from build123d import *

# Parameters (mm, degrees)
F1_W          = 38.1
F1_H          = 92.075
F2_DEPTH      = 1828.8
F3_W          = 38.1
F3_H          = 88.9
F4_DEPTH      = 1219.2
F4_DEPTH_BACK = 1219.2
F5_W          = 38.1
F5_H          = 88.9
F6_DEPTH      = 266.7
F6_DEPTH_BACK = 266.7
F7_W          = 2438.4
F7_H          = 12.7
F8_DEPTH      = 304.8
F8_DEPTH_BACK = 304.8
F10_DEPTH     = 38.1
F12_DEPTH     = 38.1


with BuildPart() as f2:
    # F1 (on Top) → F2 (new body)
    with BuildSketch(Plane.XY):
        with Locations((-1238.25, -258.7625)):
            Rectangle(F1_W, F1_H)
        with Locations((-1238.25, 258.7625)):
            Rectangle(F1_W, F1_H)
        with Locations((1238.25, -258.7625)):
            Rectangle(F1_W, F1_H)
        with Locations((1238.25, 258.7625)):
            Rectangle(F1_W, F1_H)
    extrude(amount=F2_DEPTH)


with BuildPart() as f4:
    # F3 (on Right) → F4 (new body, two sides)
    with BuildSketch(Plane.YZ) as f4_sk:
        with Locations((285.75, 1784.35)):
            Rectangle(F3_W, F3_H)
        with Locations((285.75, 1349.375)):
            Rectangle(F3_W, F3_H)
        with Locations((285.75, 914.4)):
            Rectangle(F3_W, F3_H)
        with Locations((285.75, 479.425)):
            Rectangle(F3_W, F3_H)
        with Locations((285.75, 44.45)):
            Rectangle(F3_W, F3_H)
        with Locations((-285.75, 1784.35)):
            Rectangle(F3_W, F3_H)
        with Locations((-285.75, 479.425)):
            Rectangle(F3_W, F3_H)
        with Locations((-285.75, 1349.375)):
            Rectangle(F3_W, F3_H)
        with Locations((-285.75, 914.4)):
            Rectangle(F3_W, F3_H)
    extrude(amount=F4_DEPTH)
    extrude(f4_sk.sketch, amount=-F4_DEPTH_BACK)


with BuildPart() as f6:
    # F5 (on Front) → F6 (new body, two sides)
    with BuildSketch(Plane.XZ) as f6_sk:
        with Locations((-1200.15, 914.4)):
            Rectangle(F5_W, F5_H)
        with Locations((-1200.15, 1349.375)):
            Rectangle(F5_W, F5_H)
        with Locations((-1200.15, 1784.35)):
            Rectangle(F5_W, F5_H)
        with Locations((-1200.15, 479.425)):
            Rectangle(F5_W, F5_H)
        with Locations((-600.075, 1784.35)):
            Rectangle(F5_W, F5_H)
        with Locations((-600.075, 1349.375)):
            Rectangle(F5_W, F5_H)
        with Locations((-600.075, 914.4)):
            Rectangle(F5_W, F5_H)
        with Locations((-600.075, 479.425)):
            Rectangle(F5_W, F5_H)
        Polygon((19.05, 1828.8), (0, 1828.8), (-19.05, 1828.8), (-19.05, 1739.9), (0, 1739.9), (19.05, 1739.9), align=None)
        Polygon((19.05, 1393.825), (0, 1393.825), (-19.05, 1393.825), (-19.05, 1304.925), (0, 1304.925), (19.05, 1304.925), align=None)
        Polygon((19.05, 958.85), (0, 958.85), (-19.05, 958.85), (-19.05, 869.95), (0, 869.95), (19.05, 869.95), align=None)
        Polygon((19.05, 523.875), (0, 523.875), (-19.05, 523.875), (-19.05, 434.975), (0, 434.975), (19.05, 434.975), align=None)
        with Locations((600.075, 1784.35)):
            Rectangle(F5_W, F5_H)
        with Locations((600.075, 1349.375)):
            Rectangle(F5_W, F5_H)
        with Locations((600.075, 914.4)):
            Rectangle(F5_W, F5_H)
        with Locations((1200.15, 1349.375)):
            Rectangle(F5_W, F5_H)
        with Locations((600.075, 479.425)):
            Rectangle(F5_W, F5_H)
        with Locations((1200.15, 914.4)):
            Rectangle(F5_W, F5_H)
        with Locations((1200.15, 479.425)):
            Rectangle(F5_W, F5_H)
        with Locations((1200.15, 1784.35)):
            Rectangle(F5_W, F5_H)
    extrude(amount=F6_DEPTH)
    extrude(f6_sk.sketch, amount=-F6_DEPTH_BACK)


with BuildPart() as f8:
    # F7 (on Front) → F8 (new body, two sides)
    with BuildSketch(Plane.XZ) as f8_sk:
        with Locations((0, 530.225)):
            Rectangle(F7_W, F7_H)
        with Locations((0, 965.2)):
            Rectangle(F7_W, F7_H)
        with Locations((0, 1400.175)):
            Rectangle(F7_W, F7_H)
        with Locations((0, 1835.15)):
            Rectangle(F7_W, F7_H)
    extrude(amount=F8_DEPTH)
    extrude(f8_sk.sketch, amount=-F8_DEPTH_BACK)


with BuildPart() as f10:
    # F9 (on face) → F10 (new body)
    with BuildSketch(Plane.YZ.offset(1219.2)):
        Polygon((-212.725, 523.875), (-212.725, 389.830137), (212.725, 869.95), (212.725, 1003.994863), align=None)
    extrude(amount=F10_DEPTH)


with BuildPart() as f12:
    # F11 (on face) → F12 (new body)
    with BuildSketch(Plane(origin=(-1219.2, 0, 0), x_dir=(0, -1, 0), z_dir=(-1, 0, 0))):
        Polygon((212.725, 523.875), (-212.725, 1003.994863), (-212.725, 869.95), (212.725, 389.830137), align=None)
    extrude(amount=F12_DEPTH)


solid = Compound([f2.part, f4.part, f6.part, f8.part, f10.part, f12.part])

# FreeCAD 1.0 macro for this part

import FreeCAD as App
import Part
import Sketcher
from FreeCAD import Vector
Q = App.Units.Quantity


def add_polygon(sketch, points):
    """Adds a closed chain of lines whose ends are joined by coincident constraints."""
    first, n = sketch.GeometryCount, len(points)
    for a, b in zip(points, points[1:] + points[:1]):
        sketch.addGeometry(Part.LineSegment(App.Vector(*a, 0), App.Vector(*b, 0)), False)
    for i in range(n):
        sketch.addConstraint(Sketcher.Constraint("Coincident", first + i, 2, first + (i + 1) % n, 1))

doc = App.newDocument("Part")
body = doc.addObject("PartDesign::Body", "Body")
body.AllowCompound = True

sketch1 = doc.addObject("Sketcher::SketchObject", "Sketch")
body.addObject(sketch1)
sketch1.AttachmentSupport = (doc.XY_Plane, [""])
sketch1.MapMode = "FlatFace"
add_polygon(sketch1, [(-1257.3, -212.725), (-1257.3, -304.8), (-1219.2, -304.8), (-1219.2, -212.725)])
add_polygon(sketch1, [(-1257.3, 304.8), (-1257.3, 212.725), (-1219.2, 212.725), (-1219.2, 304.8)])
add_polygon(sketch1, [(1219.2, -212.725), (1219.2, -304.8), (1257.3, -304.8), (1257.3, -212.725)])
add_polygon(sketch1, [(1219.2, 304.8), (1219.2, 212.725), (1257.3, 212.725), (1257.3, 304.8)])
sketch1.addConstraint([
    Sketcher.Constraint("Vertical", 0),
    Sketcher.Constraint("Horizontal", 1),
    Sketcher.Constraint("Vertical", 2),
    Sketcher.Constraint("Horizontal", 3),
    Sketcher.Constraint("Vertical", 4),
    Sketcher.Constraint("Horizontal", 5),
    Sketcher.Constraint("Vertical", 6),
    Sketcher.Constraint("Horizontal", 7),
    Sketcher.Constraint("Vertical", 8),
    Sketcher.Constraint("Horizontal", 9),
    Sketcher.Constraint("Vertical", 10),
    Sketcher.Constraint("Horizontal", 11),
    Sketcher.Constraint("Vertical", 12),
    Sketcher.Constraint("Horizontal", 13),
    Sketcher.Constraint("Vertical", 14),
    Sketcher.Constraint("Horizontal", 15),
    Sketcher.Constraint("Symmetric", 6, 2, 8, 2, -1, 1),
    Sketcher.Constraint("Symmetric", 4, 2, 10, 2, -1, 1),
    Sketcher.Constraint("Symmetric", 2, 2, 12, 2, -1, 1),
    Sketcher.Constraint("Symmetric", 0, 2, 14, 2, -1, 1),
    Sketcher.Constraint("Symmetric", 1, 2, 8, 2, -2),
    Sketcher.Constraint("Symmetric", 3, 2, 10, 2, -2),
    Sketcher.Constraint("DistanceX", 1, 1, 1, 2, Q("1.5 in")),
    Sketcher.Constraint("DistanceY", 0, 2, -1, 1, Q("12 in")),
    Sketcher.Constraint("DistanceX", 1, 2, -1, 1, Q("48 in")),
    Sketcher.Constraint("DistanceY", 0, 2, 0, 1, Q("3.625 in")),
])
pad1 = doc.addObject("PartDesign::Pad", "Pad")
body.addObject(pad1)
pad1.Profile = sketch1
pad1.Length = Q("72 in")
body2 = doc.addObject("PartDesign::Body", "Body001")
body2.AllowCompound = True

sketch2 = doc.addObject("Sketcher::SketchObject", "Sketch001")
body2.addObject(sketch2)
sketch2.AttachmentSupport = (doc.getObject("YZ_Plane001"), [""])
sketch2.MapMode = "FlatFace"
add_polygon(sketch2, [(266.7, 1828.8), (266.7, 1739.9), (304.8, 1739.9), (304.8, 1828.8)])
add_polygon(sketch2, [(266.7, 1393.825), (266.7, 1304.925), (304.8, 1304.925), (304.8, 1393.825)])
add_polygon(sketch2, [(266.7, 958.85), (266.7, 869.95), (304.8, 869.95), (304.8, 958.85)])
add_polygon(sketch2, [(266.7, 523.875), (266.7, 434.975), (304.8, 434.975), (304.8, 523.875)])
add_polygon(sketch2, [(266.7, 88.9), (266.7, 0), (304.8, 0), (304.8, 88.9)])
add_polygon(sketch2, [(-304.8, 1828.8), (-304.8, 1739.9), (-266.7, 1739.9), (-266.7, 1828.8)])
add_polygon(sketch2, [(-304.8, 523.875), (-304.8, 434.975), (-266.7, 434.975), (-266.7, 523.875)])
add_polygon(sketch2, [(-304.8, 1393.825), (-304.8, 1304.925), (-266.7, 1304.925), (-266.7, 1393.825)])
add_polygon(sketch2, [(-304.8, 958.85), (-304.8, 869.95), (-266.7, 869.95), (-266.7, 958.85)])
sketch2.addConstraint([
    Sketcher.Constraint("Vertical", 0),
    Sketcher.Constraint("Horizontal", 1),
    Sketcher.Constraint("Vertical", 2),
    Sketcher.Constraint("Horizontal", 3),
    Sketcher.Constraint("Vertical", 4),
    Sketcher.Constraint("Horizontal", 5),
    Sketcher.Constraint("Vertical", 6),
    Sketcher.Constraint("Horizontal", 7),
    Sketcher.Constraint("Vertical", 8),
    Sketcher.Constraint("Horizontal", 9),
    Sketcher.Constraint("Vertical", 10),
    Sketcher.Constraint("Horizontal", 11),
    Sketcher.Constraint("Vertical", 12),
    Sketcher.Constraint("Horizontal", 13),
    Sketcher.Constraint("Vertical", 14),
    Sketcher.Constraint("Horizontal", 15),
    Sketcher.Constraint("Vertical", 16),
    Sketcher.Constraint("Horizontal", 17),
    Sketcher.Constraint("Vertical", 18),
    Sketcher.Constraint("Horizontal", 19),
    Sketcher.Constraint("Vertical", 20),
    Sketcher.Constraint("Horizontal", 21),
    Sketcher.Constraint("Vertical", 22),
    Sketcher.Constraint("Horizontal", 23),
    Sketcher.Constraint("Vertical", 24),
    Sketcher.Constraint("Horizontal", 25),
    Sketcher.Constraint("Vertical", 26),
    Sketcher.Constraint("Horizontal", 27),
    Sketcher.Constraint("Vertical", 28),
    Sketcher.Constraint("Horizontal", 29),
    Sketcher.Constraint("Vertical", 30),
    Sketcher.Constraint("Horizontal", 31),
    Sketcher.Constraint("Vertical", 32),
    Sketcher.Constraint("Horizontal", 33),
    Sketcher.Constraint("Vertical", 34),
    Sketcher.Constraint("Horizontal", 35),
    Sketcher.Constraint("Symmetric", 1, 2, 20, 2, -2),
    Sketcher.Constraint("Symmetric", 3, 2, 22, 2, -2),
    Sketcher.Constraint("Symmetric", 13, 2, 24, 2, -2),
    Sketcher.Constraint("Symmetric", 15, 2, 26, 2, -2),
    Sketcher.Constraint("Symmetric", 5, 2, 28, 2, -2),
    Sketcher.Constraint("Symmetric", 7, 2, 30, 2, -2),
    Sketcher.Constraint("Symmetric", 9, 2, 32, 2, -2),
    Sketcher.Constraint("Symmetric", 11, 2, 34, 2, -2),
    Sketcher.Constraint("PointOnObject", 16, 2, -1),
    Sketcher.Constraint("Vertical", 3, 2, 4, 2),
    Sketcher.Constraint("Vertical", 2, 2, 5, 2),
    Sketcher.Constraint("Vertical", 7, 2, 8, 2),
    Sketcher.Constraint("Vertical", 6, 2, 9, 2),
    Sketcher.Constraint("Vertical", 11, 2, 12, 2),
    Sketcher.Constraint("Vertical", 10, 2, 13, 2),
    Sketcher.Constraint("Vertical", 15, 2, 16, 2),
    Sketcher.Constraint("Vertical", 14, 2, 17, 2),
    Sketcher.Constraint("Equal", 2, 4),
    Sketcher.Constraint("Equal", 6, 8),
    Sketcher.Constraint("Equal", 10, 12),
    Sketcher.Constraint("Equal", 14, 16),
    Sketcher.Constraint("DistanceX", 1, 1, 1, 2, Q("1.5 in")),
    Sketcher.Constraint("DistanceY", 0, 2, 0, 1, Q("3.5 in")),
    Sketcher.Constraint("DistanceX", -1, 1, 1, 2, Q("12 in")),
    Sketcher.Constraint("DistanceY", -1, 1, 2, 2, Q("72 in")),
    Sketcher.Constraint("DistanceY", -1, 1, 8, 2, Q("34.25 in")),
    Sketcher.Constraint("DistanceY", 12, 2, 4, 2, Q("34.25 in")),
    Sketcher.Constraint("DistanceY", -1, 1, 4, 2, Q("51.375 in")),
])
pad2 = doc.addObject("PartDesign::Pad", "Pad001")
body2.addObject(pad2)
pad2.Profile = sketch2
pad2.Type = "TwoLengths"
pad2.Length = Q("48 in")
pad2.Length2 = Q("48 in")
body3 = doc.addObject("PartDesign::Body", "Body002")
body3.AllowCompound = True

sketch3 = doc.addObject("Sketcher::SketchObject", "Sketch002")
body3.addObject(sketch3)
sketch3.AttachmentSupport = (doc.getObject("XZ_Plane002"), [""])
sketch3.MapMode = "FlatFace"
add_polygon(sketch3, [(-1219.2, 958.85), (-1219.2, 869.95), (-1181.1, 869.95), (-1181.1, 958.85)])
add_polygon(sketch3, [(-1219.2, 1393.825), (-1219.2, 1304.925), (-1181.1, 1304.925), (-1181.1, 1393.825)])
add_polygon(sketch3, [(-1219.2, 1828.8), (-1219.2, 1739.9), (-1181.1, 1739.9), (-1181.1, 1828.8)])
add_polygon(sketch3, [(-1219.2, 523.875), (-1219.2, 434.975), (-1181.1, 434.975), (-1181.1, 523.875)])
add_polygon(sketch3, [(-619.125, 1828.8), (-619.125, 1739.9), (-581.025, 1739.9), (-581.025, 1828.8)])
add_polygon(sketch3, [(-619.125, 1393.825), (-619.125, 1304.925), (-581.025, 1304.925), (-581.025, 1393.825)])
add_polygon(sketch3, [(-619.125, 958.85), (-619.125, 869.95), (-581.025, 869.95), (-581.025, 958.85)])
add_polygon(sketch3, [(-619.125, 523.875), (-619.125, 434.975), (-581.025, 434.975), (-581.025, 523.875)])
add_polygon(sketch3, [(19.05, 1828.8), (-19.05, 1828.8), (-19.05, 1739.9), (19.05, 1739.9)])
add_polygon(sketch3, [(19.05, 1393.825), (-19.05, 1393.825), (-19.05, 1304.925), (19.05, 1304.925)])
add_polygon(sketch3, [(19.05, 958.85), (-19.05, 958.85), (-19.05, 869.95), (19.05, 869.95)])
add_polygon(sketch3, [(19.05, 523.875), (-19.05, 523.875), (-19.05, 434.975), (19.05, 434.975)])
add_polygon(sketch3, [(581.025, 1828.8), (581.025, 1739.9), (619.125, 1739.9), (619.125, 1828.8)])
add_polygon(sketch3, [(581.025, 1393.825), (581.025, 1304.925), (619.125, 1304.925), (619.125, 1393.825)])
add_polygon(sketch3, [(581.025, 958.85), (581.025, 869.95), (619.125, 869.95), (619.125, 958.85)])
add_polygon(sketch3, [(1181.1, 1393.825), (1181.1, 1304.925), (1219.2, 1304.925), (1219.2, 1393.825)])
add_polygon(sketch3, [(581.025, 523.875), (581.025, 434.975), (619.125, 434.975), (619.125, 523.875)])
add_polygon(sketch3, [(1181.1, 958.85), (1181.1, 869.95), (1219.2, 869.95), (1219.2, 958.85)])
add_polygon(sketch3, [(1181.1, 523.875), (1181.1, 434.975), (1219.2, 434.975), (1219.2, 523.875)])
add_polygon(sketch3, [(1181.1, 1828.8), (1181.1, 1739.9), (1219.2, 1739.9), (1219.2, 1828.8)])
sketch3.addConstraint([
    Sketcher.Constraint("Vertical", 0),
    Sketcher.Constraint("Horizontal", 1),
    Sketcher.Constraint("Vertical", 2),
    Sketcher.Constraint("Horizontal", 3),
    Sketcher.Constraint("Vertical", 4),
    Sketcher.Constraint("Horizontal", 5),
    Sketcher.Constraint("Vertical", 6),
    Sketcher.Constraint("Horizontal", 7),
    Sketcher.Constraint("Vertical", 8),
    Sketcher.Constraint("Horizontal", 9),
    Sketcher.Constraint("Vertical", 10),
    Sketcher.Constraint("Horizontal", 11),
    Sketcher.Constraint("Vertical", 12),
    Sketcher.Constraint("Horizontal", 13),
    Sketcher.Constraint("Vertical", 14),
    Sketcher.Constraint("Horizontal", 15),
    Sketcher.Constraint("Vertical", 16),
    Sketcher.Constraint("Horizontal", 17),
    Sketcher.Constraint("Vertical", 18),
    Sketcher.Constraint("Horizontal", 19),
    Sketcher.Constraint("Vertical", 20),
    Sketcher.Constraint("Horizontal", 21),
    Sketcher.Constraint("Vertical", 22),
    Sketcher.Constraint("Horizontal", 23),
    Sketcher.Constraint("Vertical", 24),
    Sketcher.Constraint("Horizontal", 25),
    Sketcher.Constraint("Vertical", 26),
    Sketcher.Constraint("Horizontal", 27),
    Sketcher.Constraint("Vertical", 28),
    Sketcher.Constraint("Horizontal", 29),
    Sketcher.Constraint("Vertical", 30),
    Sketcher.Constraint("Horizontal", 31),
    Sketcher.Constraint("Horizontal", 32),
    Sketcher.Constraint("Vertical", 33),
    Sketcher.Constraint("Horizontal", 34),
    Sketcher.Constraint("Vertical", 35),
    Sketcher.Constraint("Horizontal", 36),
    Sketcher.Constraint("Vertical", 37),
    Sketcher.Constraint("Horizontal", 38),
    Sketcher.Constraint("Vertical", 39),
    Sketcher.Constraint("Horizontal", 40),
    Sketcher.Constraint("Vertical", 41),
    Sketcher.Constraint("Horizontal", 42),
    Sketcher.Constraint("Vertical", 43),
    Sketcher.Constraint("Horizontal", 44),
    Sketcher.Constraint("Vertical", 45),
    Sketcher.Constraint("Horizontal", 46),
    Sketcher.Constraint("Vertical", 47),
    Sketcher.Constraint("Vertical", 48),
    Sketcher.Constraint("Horizontal", 49),
    Sketcher.Constraint("Vertical", 50),
    Sketcher.Constraint("Horizontal", 51),
    Sketcher.Constraint("Vertical", 52),
    Sketcher.Constraint("Horizontal", 53),
    Sketcher.Constraint("Vertical", 54),
    Sketcher.Constraint("Horizontal", 55),
    Sketcher.Constraint("Vertical", 56),
    Sketcher.Constraint("Horizontal", 57),
    Sketcher.Constraint("Vertical", 58),
    Sketcher.Constraint("Horizontal", 59),
    Sketcher.Constraint("Vertical", 60),
    Sketcher.Constraint("Horizontal", 61),
    Sketcher.Constraint("Vertical", 62),
    Sketcher.Constraint("Horizontal", 63),
    Sketcher.Constraint("Vertical", 64),
    Sketcher.Constraint("Horizontal", 65),
    Sketcher.Constraint("Vertical", 66),
    Sketcher.Constraint("Horizontal", 67),
    Sketcher.Constraint("Vertical", 68),
    Sketcher.Constraint("Horizontal", 69),
    Sketcher.Constraint("Vertical", 70),
    Sketcher.Constraint("Horizontal", 71),
    Sketcher.Constraint("Vertical", 72),
    Sketcher.Constraint("Horizontal", 73),
    Sketcher.Constraint("Vertical", 74),
    Sketcher.Constraint("Horizontal", 75),
    Sketcher.Constraint("Vertical", 76),
    Sketcher.Constraint("Horizontal", 77),
    Sketcher.Constraint("Vertical", 78),
    Sketcher.Constraint("Horizontal", 79),
    Sketcher.Constraint("Symmetric", 17, 2, 48, 2, -2),
    Sketcher.Constraint("Symmetric", 19, 2, 50, 2, -2),
    Sketcher.Constraint("Symmetric", 21, 2, 52, 2, -2),
    Sketcher.Constraint("Symmetric", 23, 2, 54, 2, -2),
    Sketcher.Constraint("Symmetric", 25, 2, 56, 2, -2),
    Sketcher.Constraint("Symmetric", 27, 2, 58, 2, -2),
    Sketcher.Constraint("Symmetric", 5, 2, 60, 2, -2),
    Sketcher.Constraint("Symmetric", 7, 2, 62, 2, -2),
    Sketcher.Constraint("Symmetric", 29, 2, 64, 2, -2),
    Sketcher.Constraint("Symmetric", 31, 2, 66, 2, -2),
    Sketcher.Constraint("Symmetric", 1, 2, 68, 2, -2),
    Sketcher.Constraint("Symmetric", 3, 2, 70, 2, -2),
    Sketcher.Constraint("Symmetric", 13, 2, 72, 2, -2),
    Sketcher.Constraint("Symmetric", 15, 2, 74, 2, -2),
    Sketcher.Constraint("Symmetric", 9, 2, 76, 2, -2),
    Sketcher.Constraint("Symmetric", 11, 2, 78, 2, -2),
    Sketcher.Constraint("Horizontal", 9, 2, 16, 2),
    Sketcher.Constraint("Horizontal", 11, 2, 18, 2),
    Sketcher.Constraint("Horizontal", 5, 2, 20, 2),
    Sketcher.Constraint("Horizontal", 7, 2, 22, 2),
    Sketcher.Constraint("Horizontal", 1, 2, 24, 2),
    Sketcher.Constraint("Horizontal", 3, 2, 26, 2),
    Sketcher.Constraint("Horizontal", 13, 2, 28, 2),
    Sketcher.Constraint("Horizontal", 15, 2, 30, 2),
    Sketcher.Constraint("Horizontal", 19, 2, 32, 2),
    Sketcher.Constraint("Horizontal", 17, 2, 33, 2),
    Sketcher.Constraint("Horizontal", 23, 2, 36, 2),
    Sketcher.Constraint("Horizontal", 21, 2, 37, 2),
    Sketcher.Constraint("Horizontal", 27, 2, 40, 2),
    Sketcher.Constraint("Horizontal", 25, 2, 41, 2),
    Sketcher.Constraint("Horizontal", 31, 2, 44, 2),
    Sketcher.Constraint("Horizontal", 29, 2, 45, 2),
    Sketcher.Constraint("Vertical", 3, 2, 4, 2),
    Sketcher.Constraint("Vertical", 2, 2, 5, 2),
    Sketcher.Constraint("Vertical", 7, 2, 8, 2),
    Sketcher.Constraint("Vertical", 6, 2, 9, 2),
    Sketcher.Constraint("Vertical", 11, 2, 12, 2),
    Sketcher.Constraint("Vertical", 10, 2, 13, 2),
    Sketcher.Constraint("Vertical", 19, 2, 20, 2),
    Sketcher.Constraint("Vertical", 18, 2, 21, 2),
    Sketcher.Constraint("Vertical", 23, 2, 24, 2),
    Sketcher.Constraint("Vertical", 22, 2, 25, 2),
    Sketcher.Constraint("Vertical", 27, 2, 28, 2),
    Sketcher.Constraint("Vertical", 26, 2, 29, 2),
    Sketcher.Constraint("Vertical", 33, 2, 36, 2),
    Sketcher.Constraint("Vertical", 35, 2, 38, 2),
    Sketcher.Constraint("Vertical", 37, 2, 40, 2),
    Sketcher.Constraint("Vertical", 39, 2, 42, 2),
    Sketcher.Constraint("Vertical", 41, 2, 44, 2),
    Sketcher.Constraint("Vertical", 43, 2, 46, 2),
    Sketcher.Constraint("Equal", 15, 17),
    Sketcher.Constraint("Equal", 31, 32),
    Sketcher.Constraint("Equal", 2, 4),
    Sketcher.Constraint("Equal", 6, 8),
    Sketcher.Constraint("Equal", 10, 12),
    Sketcher.Constraint("DistanceX", 1, 1, 1, 2, Q("1.5 in")),
    Sketcher.Constraint("DistanceY", 0, 2, 0, 1, Q("3.5 in")),
    Sketcher.Constraint("DistanceX", 0, 2, -1, 1, Q("48 in")),
    Sketcher.Constraint("DistanceY", -1, 1, 10, 2, Q("72 in")),
    Sketcher.Constraint("DistanceY", -1, 1, 0, 2, Q("34.25 in")),
    Sketcher.Constraint("DistanceX", 32, 2, -1, 1, Q("0.75 in")),
    Sketcher.Constraint("DistanceY", -1, 1, 4, 2, Q("51.375 in")),
    Sketcher.Constraint("DistanceY", -1, 1, 12, 2, Q("17.125 in")),
    Sketcher.Constraint("DistanceX", 16, 2, -1, 1, Q("24.375 in")),
])
pad3 = doc.addObject("PartDesign::Pad", "Pad002")
body3.addObject(pad3)
pad3.Profile = sketch3
pad3.Type = "TwoLengths"
pad3.Length = Q("10.5 in")
pad3.Length2 = Q("10.5 in")
body4 = doc.addObject("PartDesign::Body", "Body003")
body4.AllowCompound = True

sketch4 = doc.addObject("Sketcher::SketchObject", "Sketch003")
body4.addObject(sketch4)
sketch4.AttachmentSupport = (doc.getObject("XZ_Plane003"), [""])
sketch4.MapMode = "FlatFace"
add_polygon(sketch4, [(-1219.2, 536.575), (-1219.2, 523.875), (1219.2, 523.875), (1219.2, 536.575)])
add_polygon(sketch4, [(-1219.2, 971.55), (-1219.2, 958.85), (1219.2, 958.85), (1219.2, 971.55)])
add_polygon(sketch4, [(-1219.2, 1406.525), (-1219.2, 1393.825), (1219.2, 1393.825), (1219.2, 1406.525)])
add_polygon(sketch4, [(-1219.2, 1841.5), (-1219.2, 1828.8), (1219.2, 1828.8), (1219.2, 1841.5)])
sketch4.addConstraint([
    Sketcher.Constraint("Vertical", 0),
    Sketcher.Constraint("Horizontal", 1),
    Sketcher.Constraint("Vertical", 2),
    Sketcher.Constraint("Horizontal", 3),
    Sketcher.Constraint("Vertical", 4),
    Sketcher.Constraint("Horizontal", 5),
    Sketcher.Constraint("Vertical", 6),
    Sketcher.Constraint("Horizontal", 7),
    Sketcher.Constraint("Vertical", 8),
    Sketcher.Constraint("Horizontal", 9),
    Sketcher.Constraint("Vertical", 10),
    Sketcher.Constraint("Horizontal", 11),
    Sketcher.Constraint("Vertical", 12),
    Sketcher.Constraint("Horizontal", 13),
    Sketcher.Constraint("Vertical", 14),
    Sketcher.Constraint("Horizontal", 15),
    Sketcher.Constraint("Vertical", 3, 2, 4, 2),
    Sketcher.Constraint("Vertical", 2, 2, 5, 2),
    Sketcher.Constraint("Vertical", 7, 2, 8, 2),
    Sketcher.Constraint("Vertical", 6, 2, 9, 2),
    Sketcher.Constraint("Vertical", 11, 2, 12, 2),
    Sketcher.Constraint("Vertical", 10, 2, 13, 2),
    Sketcher.Constraint("Equal", 2, 4),
    Sketcher.Constraint("Equal", 6, 8),
    Sketcher.Constraint("Equal", 10, 12),
    Sketcher.Constraint("DistanceX", 1, 1, 1, 2, Q("96 in")),
    Sketcher.Constraint("DistanceY", 0, 2, 0, 1, Q("0.5 in")),
    Sketcher.Constraint("DistanceX", 0, 2, -1, 1, Q("48 in")),
    Sketcher.Constraint("DistanceY", -1, 1, 12, 2, Q("72 in")),
    Sketcher.Constraint("DistanceY", -1, 1, 4, 2, Q("37.75 in")),
    Sketcher.Constraint("DistanceY", 3, 2, 8, 2, Q("33.75 in")),
    Sketcher.Constraint("DistanceY", -1, 1, 0, 2, Q("20.625 in")),
])
pad4 = doc.addObject("PartDesign::Pad", "Pad003")
body4.addObject(pad4)
pad4.Profile = sketch4
pad4.Type = "TwoLengths"
pad4.Length = Q("12 in")
pad4.Length2 = Q("12 in")
body5 = doc.addObject("PartDesign::Body", "Body004")

sketch5 = doc.addObject("Sketcher::SketchObject", "Sketch004")
body5.addObject(sketch5)
sketch5.AttachmentSupport = (doc.getObject("YZ_Plane004"), [""])
sketch5.MapMode = "FlatFace"
sketch5.AttachmentOffset = App.Placement(Vector(0, 0, 48 * 25.4), App.Rotation())
add_polygon(sketch5, [(-212.725, 523.875), (-212.725, 389.830137), (212.725, 869.95), (212.725, 1003.994863)])
sketch5.addConstraint([
    Sketcher.Constraint("Vertical", 0),
    Sketcher.Constraint("Vertical", 2),
    Sketcher.Constraint("Parallel", 1, 3),
    Sketcher.Constraint("DistanceY", -1, 1, 1, 2, Q("34.25 in")),
    Sketcher.Constraint("DistanceX", 0, 2, 1, 2, Q("16.75 in")),
    Sketcher.Constraint("DistanceX", 0, 2, -1, 1, Q("8.375 in")),
    Sketcher.Constraint("DistanceY", -1, 1, 3, 2, Q("20.625 in")),
    Sketcher.Constraint("DistanceY", 0, 2, 0, 1, Q("134.044863 mm")),
])
pad5 = doc.addObject("PartDesign::Pad", "Pad004")
body5.addObject(pad5)
pad5.Profile = sketch5
pad5.Length = Q("1.5 in")
body6 = doc.addObject("PartDesign::Body", "Body005")

sketch6 = doc.addObject("Sketcher::SketchObject", "Sketch005")
body6.addObject(sketch6)
sketch6.AttachmentSupport = (doc.getObject("YZ_Plane005"), [""])
sketch6.MapMode = "FlatFace"
sketch6.AttachmentOffset = App.Placement(Vector(0, 0, -48 * 25.4), App.Rotation())
add_polygon(sketch6, [(-212.725, 523.875), (212.725, 1003.994863), (212.725, 869.95), (-212.725, 389.830137)])
sketch6.addConstraint([
    Sketcher.Constraint("Vertical", 1),
    Sketcher.Constraint("Vertical", 3),
    Sketcher.Constraint("Parallel", 0, 2),
    Sketcher.Constraint("DistanceY", -1, 1, 1, 2, Q("34.25 in")),
    Sketcher.Constraint("DistanceX", 2, 2, 1, 2, Q("16.75 in")),
    Sketcher.Constraint("DistanceX", -1, 1, 0, 2, Q("8.375 in")),
    Sketcher.Constraint("DistanceY", -1, 1, 3, 2, Q("20.625 in")),
    Sketcher.Constraint("DistanceY", 1, 2, 1, 1, Q("134.044863 mm")),
])
pad6 = doc.addObject("PartDesign::Pad", "Pad005")
body6.addObject(pad6)
pad6.Profile = sketch6
pad6.Length = Q("1.5 in")
pad6.Reversed = True

doc.recompute()
